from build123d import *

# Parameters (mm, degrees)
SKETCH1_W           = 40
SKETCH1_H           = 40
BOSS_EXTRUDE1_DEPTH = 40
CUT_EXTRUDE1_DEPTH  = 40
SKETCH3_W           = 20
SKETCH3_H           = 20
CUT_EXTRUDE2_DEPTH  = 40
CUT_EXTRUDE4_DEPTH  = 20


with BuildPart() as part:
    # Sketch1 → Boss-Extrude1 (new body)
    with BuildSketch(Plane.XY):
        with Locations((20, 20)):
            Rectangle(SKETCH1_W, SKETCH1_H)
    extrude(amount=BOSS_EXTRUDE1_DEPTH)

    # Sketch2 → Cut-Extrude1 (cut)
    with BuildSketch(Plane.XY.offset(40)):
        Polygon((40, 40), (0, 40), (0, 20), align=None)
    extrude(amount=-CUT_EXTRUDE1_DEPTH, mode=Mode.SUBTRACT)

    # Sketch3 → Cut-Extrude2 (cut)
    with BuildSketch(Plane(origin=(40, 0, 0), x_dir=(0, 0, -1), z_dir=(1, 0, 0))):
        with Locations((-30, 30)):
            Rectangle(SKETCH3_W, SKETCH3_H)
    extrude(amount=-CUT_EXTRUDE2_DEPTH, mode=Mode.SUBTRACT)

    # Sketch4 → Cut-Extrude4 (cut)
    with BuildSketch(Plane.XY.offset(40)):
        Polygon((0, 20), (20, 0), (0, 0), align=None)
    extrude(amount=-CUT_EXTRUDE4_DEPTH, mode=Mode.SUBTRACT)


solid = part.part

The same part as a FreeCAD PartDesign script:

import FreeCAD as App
import Part
import Sketcher
from FreeCAD import Vector
Q = App.Units.Quantity


def add_polygon(sketch, points):
    """Adds a closed chain of lines whose ends are joined by coincident constraints."""
    first, n = sketch.GeometryCount, len(points)
    for a, b in zip(points, points[1:] + points[:1]):
        sketch.addGeometry(Part.LineSegment(App.Vector(*a, 0), App.Vector(*b, 0)), False)
    for i in range(n):
        sketch.addConstraint(Sketcher.Constraint("Coincident", first + i, 2, first + (i + 1) % n, 1))

doc = App.newDocument("Part")
params = doc.addObject("Spreadsheet::Sheet", "Params")
for row, (alias, value) in enumerate([
    ("sketch1_width", "40 mm"),
    ("pad1_length", "40 mm"),
    ("sketch2_width", "40 mm"),
    ("sketch2_height", "20 mm"),
    ("pocket1_length", "40 mm"),
    ("sketch3_width", "20 mm"),
    ("pocket2_length", "40 mm"),
    ("sketch4_width", "20 mm"),
    ("pocket3_length", "20 mm"),
], start=1):
    params.set(f"A{row}", alias)
    params.set(f"B{row}", "=" + value)
    params.setAlias(f"B{row}", alias)

body = doc.addObject("PartDesign::Body", "Body")

# Sketch on XY plane
sketch1 = doc.addObject("Sketcher::SketchObject", "Sketch")
body.addObject(sketch1)
sketch1.AttachmentSupport = (doc.XY_Plane, [""])
sketch1.MapMode = "FlatFace"
add_polygon(sketch1, [(0, 40), (0, 0), (40, 0), (40, 40)])  # lines 0-3
sketch1.addConstraint([
    Sketcher.Constraint("Vertical", 0),
    Sketcher.Constraint("Horizontal", 1),
    Sketcher.Constraint("Vertical", 2),
    Sketcher.Constraint("Horizontal", 3),
    Sketcher.Constraint("Coincident", 0, 2, -1, 1),
    Sketcher.Constraint("Equal", 3, 0),
    Sketcher.Constraint("DistanceX", 1, 1, 1, 2, Q("40 mm")),
])
sketch1.setExpression("Constraints[10]", "Params.sketch1_width")
pad1 = doc.addObject("PartDesign::Pad", "Pad")
body.addObject(pad1)
pad1.Profile = sketch1
pad1.setExpression("Length", "Params.pad1_length")

# Sketch on XY plane
sketch2 = doc.addObject("Sketcher::SketchObject", "Sketch001")
body.addObject(sketch2)
sketch2.AttachmentSupport = (doc.XY_Plane, [""])
sketch2.MapMode = "FlatFace"
sketch2.AttachmentOffset = App.Placement(Vector(0, 0, 40), App.Rotation())
add_polygon(sketch2, [(40, 40), (0, 40), (0, 20)])  # lines 0-2
sketch2.addConstraint([
    Sketcher.Constraint("Horizontal", 0),
    Sketcher.Constraint("Vertical", 1),
    Sketcher.Constraint("PointOnObject", 0, 2, -2),
    Sketcher.Constraint("DistanceX", 0, 2, 0, 1, Q("40 mm")),
    Sketcher.Constraint("DistanceY", 1, 2, 1, 1, Q("20 mm")),
    Sketcher.Constraint("DistanceY", -1, 1, 0, 2, Q("40 mm")),
])
sketch2.setExpression("Constraints[6]", "Params.sketch2_width")
sketch2.setExpression("Constraints[7]", "Params.sketch2_height")
pocket1 = doc.addObject("PartDesign::Pocket", "Pocket")
body.addObject(pocket1)
pocket1.Profile = sketch2
pocket1.setExpression("Length", "Params.pocket1_length")

# Sketch on YZ plane
sketch3 = doc.addObject("Sketcher::SketchObject", "Sketch002")
body.addObject(sketch3)
sketch3.AttachmentSupport = (doc.YZ_Plane, [""])
sketch3.MapMode = "FlatFace"
sketch3.AttachmentOffset = App.Placement(Vector(0, 0, 40), App.Rotation())
add_polygon(sketch3, [(40, 40), (20, 40), (20, 20), (40, 20)])  # lines 0-3
sketch3.addConstraint([
    Sketcher.Constraint("Horizontal", 0),
    Sketcher.Constraint("Vertical", 1),
    Sketcher.Constraint("Horizontal", 2),
    Sketcher.Constraint("Vertical", 3),
    Sketcher.Constraint("Equal", 2, 1),
    Sketcher.Constraint("DistanceX", 0, 2, 0, 1, Q("20 mm")),
    Sketcher.Constraint("DistanceX", -1, 1, 0, 2, Q("20 mm")),
    Sketcher.Constraint("DistanceY", -1, 1, 0, 2, Q("40 mm")),
])
sketch3.setExpression("Constraints[9]", "Params.sketch3_width")
pocket2 = doc.addObject("PartDesign::Pocket", "Pocket001")
body.addObject(pocket2)
pocket2.Profile = sketch3
pocket2.setExpression("Length", "Params.pocket2_length")

# Sketch on XY plane
sketch4 = doc.addObject("Sketcher::SketchObject", "Sketch003")
body.addObject(sketch4)
sketch4.AttachmentSupport = (doc.XY_Plane, [""])
sketch4.MapMode = "FlatFace"
sketch4.AttachmentOffset = App.Placement(Vector(0, 0, 40), App.Rotation())
add_polygon(sketch4, [(20, 0), (0, 20), (0, 0)])  # lines 0-2
sketch4.addConstraint([
    Sketcher.Constraint("Vertical", 1),
    Sketcher.Constraint("Horizontal", 2),
    Sketcher.Constraint("Coincident", 1, 2, -1, 1),
    Sketcher.Constraint("Equal", 2, 1),
    Sketcher.Constraint("DistanceX", 2, 1, 2, 2, Q("20 mm")),
])
sketch4.setExpression("Constraints[7]", "Params.sketch4_width")
pocket3 = doc.addObject("PartDesign::Pocket", "Pocket002")
body.addObject(pocket3)
pocket3.Profile = sketch4
pocket3.setExpression("Length", "Params.pocket3_length")

doc.recompute()
